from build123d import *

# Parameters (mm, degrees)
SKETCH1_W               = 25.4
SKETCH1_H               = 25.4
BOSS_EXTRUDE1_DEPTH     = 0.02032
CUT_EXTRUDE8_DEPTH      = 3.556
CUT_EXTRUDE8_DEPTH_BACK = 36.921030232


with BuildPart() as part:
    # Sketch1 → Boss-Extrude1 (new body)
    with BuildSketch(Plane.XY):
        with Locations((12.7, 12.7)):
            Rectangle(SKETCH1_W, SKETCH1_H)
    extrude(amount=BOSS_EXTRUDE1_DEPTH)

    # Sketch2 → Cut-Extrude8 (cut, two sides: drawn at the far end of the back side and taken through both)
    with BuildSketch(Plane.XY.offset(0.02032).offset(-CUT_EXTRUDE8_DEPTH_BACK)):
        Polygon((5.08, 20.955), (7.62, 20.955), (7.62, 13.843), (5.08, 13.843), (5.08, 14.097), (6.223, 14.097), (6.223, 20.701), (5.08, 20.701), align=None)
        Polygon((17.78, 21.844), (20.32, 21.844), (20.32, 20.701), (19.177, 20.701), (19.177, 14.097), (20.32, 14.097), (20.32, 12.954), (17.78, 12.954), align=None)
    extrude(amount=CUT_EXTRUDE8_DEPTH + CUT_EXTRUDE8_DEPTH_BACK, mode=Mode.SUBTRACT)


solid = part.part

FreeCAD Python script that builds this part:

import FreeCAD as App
import Part
import Sketcher

V = App.Vector
Q = App.Units.Quantity

doc = App.newDocument("Part")
body = doc.addObject("PartDesign::Body", "Body")

# Sketch on XY plane
sketch1 = doc.addObject("Sketcher::SketchObject", "Sketch")
body.addObject(sketch1)
sketch1.AttachmentSupport = (doc.XY_Plane, [""])
sketch1.MapMode = "FlatFace"
sketch1.addGeometry(Part.LineSegment(V(0, 25, 0), V(0, 0, 0)), False)
sketch1.addGeometry(Part.LineSegment(V(0, 0, 0), V(25, 0, 0)), False)
sketch1.addGeometry(Part.LineSegment(V(25, 0, 0), V(25, 25, 0)), False)
sketch1.addGeometry(Part.LineSegment(V(25, 25, 0), V(0, 25, 0)), False)
sketch1.addConstraint(Sketcher.Constraint("Coincident", 0, 2, 1, 1))
sketch1.addConstraint(Sketcher.Constraint("Coincident", 1, 2, 2, 1))
sketch1.addConstraint(Sketcher.Constraint("Coincident", 2, 2, 3, 1))
sketch1.addConstraint(Sketcher.Constraint("Coincident", 3, 2, 0, 1))
sketch1.addConstraint(Sketcher.Constraint("Vertical", 0))
sketch1.addConstraint(Sketcher.Constraint("Horizontal", 1))
sketch1.addConstraint(Sketcher.Constraint("Vertical", 2))
sketch1.addConstraint(Sketcher.Constraint("Horizontal", 3))
sketch1.addConstraint(Sketcher.Constraint("Coincident", 0, 2, -1, 1))
sketch1.addConstraint(Sketcher.Constraint("Equal", 3, 0))
sketch1.addConstraint(Sketcher.Constraint("DistanceX", 1, 1, 1, 2, Q("1 in")))
pad1 = doc.addObject("PartDesign::Pad", "Pad")
body.addObject(pad1)
pad1.Profile = sketch1
pad1.Length = Q("0.0008 in")

# Sketch on XY plane
sketch2 = doc.addObject("Sketcher::SketchObject", "Sketch001")
body.addObject(sketch2)
sketch2.AttachmentSupport = (doc.XY_Plane, [""])
sketch2.MapMode = "FlatFace"
sketch2.AttachmentOffset = App.Placement(V(0, 0, 0.0008 * 25.4), App.Rotation())
sketch2.addGeometry(Part.LineSegment(V(7.62, 20.95, 0), V(5.08, 20.95, 0)), False)
sketch2.addGeometry(Part.LineSegment(V(5.08, 20.95, 0), V(5.08, 20.7, 0)), False)
sketch2.addGeometry(Part.LineSegment(V(5.08, 20.7, 0), V(6.22, 20.7, 0)), False)
sketch2.addGeometry(Part.LineSegment(V(6.22, 20.7, 0), V(6.22, 14.1, 0)), False)
sketch2.addGeometry(Part.LineSegment(V(6.22, 14.1, 0), V(5.08, 14.1, 0)), False)
sketch2.addGeometry(Part.LineSegment(V(5.08, 14.1, 0), V(5.08, 13.84, 0)), False)
sketch2.addGeometry(Part.LineSegment(V(5.08, 13.84, 0), V(7.62, 13.84, 0)), False)
sketch2.addGeometry(Part.LineSegment(V(7.62, 13.84, 0), V(7.62, 20.95, 0)), False)
sketch2.addGeometry(Part.LineSegment(V(20.32, 21.84, 0), V(17.78, 21.84, 0)), False)
sketch2.addGeometry(Part.LineSegment(V(17.78, 21.84, 0), V(17.78, 12.95, 0)), False)
sketch2.addGeometry(Part.LineSegment(V(17.78, 12.95, 0), V(20.32, 12.95, 0)), False)
sketch2.addGeometry(Part.LineSegment(V(20.32, 12.95, 0), V(20.32, 14.1, 0)), False)
sketch2.addGeometry(Part.LineSegment(V(20.32, 14.1, 0), V(19.18, 14.1, 0)), False)
sketch2.addGeometry(Part.LineSegment(V(19.18, 14.1, 0), V(19.18, 20.7, 0)), False)
sketch2.addGeometry(Part.LineSegment(V(19.18, 20.7, 0), V(20.32, 20.7, 0)), False)
sketch2.addGeometry(Part.LineSegment(V(20.32, 20.7, 0), V(20.32, 21.84, 0)), False)
sketch2.addConstraint(Sketcher.Constraint("Coincident", 0, 2, 1, 1))
sketch2.addConstraint(Sketcher.Constraint("Coincident", 1, 2, 2, 1))
sketch2.addConstraint(Sketcher.Constraint("Coincident", 2, 2, 3, 1))
sketch2.addConstraint(Sketcher.Constraint("Coincident", 3, 2, 4, 1))
sketch2.addConstraint(Sketcher.Constraint("Coincident", 4, 2, 5, 1))
sketch2.addConstraint(Sketcher.Constraint("Coincident", 5, 2, 6, 1))
sketch2.addConstraint(Sketcher.Constraint("Coincident", 6, 2, 7, 1))
sketch2.addConstraint(Sketcher.Constraint("Coincident", 7, 2, 0, 1))
sketch2.addConstraint(Sketcher.Constraint("Coincident", 8, 2, 9, 1))
sketch2.addConstraint(Sketcher.Constraint("Coincident", 9, 2, 10, 1))
sketch2.addConstraint(Sketcher.Constraint("Coincident", 10, 2, 11, 1))
sketch2.addConstraint(Sketcher.Constraint("Coincident", 11, 2, 12, 1))
sketch2.addConstraint(Sketcher.Constraint("Coincident", 12, 2, 13, 1))
sketch2.addConstraint(Sketcher.Constraint("Coincident", 13, 2, 14, 1))
sketch2.addConstraint(Sketcher.Constraint("Coincident", 14, 2, 15, 1))
sketch2.addConstraint(Sketcher.Constraint("Coincident", 15, 2, 8, 1))
sketch2.addConstraint(Sketcher.Constraint("Horizontal", 0))
sketch2.addConstraint(Sketcher.Constraint("Vertical", 1))
sketch2.addConstraint(Sketcher.Constraint("Horizontal", 2))
sketch2.addConstraint(Sketcher.Constraint("Vertical", 3))
sketch2.addConstraint(Sketcher.Constraint("Horizontal", 4))
sketch2.addConstraint(Sketcher.Constraint("Vertical", 5))
sketch2.addConstraint(Sketcher.Constraint("Horizontal", 6))
sketch2.addConstraint(Sketcher.Constraint("Vertical", 7))
sketch2.addConstraint(Sketcher.Constraint("Horizontal", 8))
sketch2.addConstraint(Sketcher.Constraint("Vertical", 9))
sketch2.addConstraint(Sketcher.Constraint("Horizontal", 10))
sketch2.addConstraint(Sketcher.Constraint("Vertical", 11))
sketch2.addConstraint(Sketcher.Constraint("Horizontal", 12))
sketch2.addConstraint(Sketcher.Constraint("Vertical", 13))
sketch2.addConstraint(Sketcher.Constraint("Horizontal", 14))
sketch2.addConstraint(Sketcher.Constraint("Vertical", 15))
sketch2.addConstraint(Sketcher.Constraint("Horizontal", 4, 2, 11, 2))
sketch2.addConstraint(Sketcher.Constraint("Horizontal", 2, 2, 13, 2))
sketch2.addConstraint(Sketcher.Constraint("Vertical", 1, 2, 4, 2))
sketch2.addConstraint(Sketcher.Constraint("Vertical", 11, 2, 14, 2))
sketch2.addConstraint(Sketcher.Constraint("Equal", 6, 8))
sketch2.addConstraint(Sketcher.Constraint("Equal", 4, 12))
sketch2.addConstraint(Sketcher.Constraint("Equal", 1, 5))
sketch2.addConstraint(Sketcher.Constraint("Equal", 14, 11))
sketch2.addConstraint(Sketcher.Constraint("Equal", 11, 15))
sketch2.addConstraint(Sketcher.Constraint("DistanceX", 0, 2, 0, 1, Q("0.1 in")))
sketch2.addConstraint(Sketcher.Constraint("DistanceY", 1, 2, 1, 1, Q("0.01 in")))
sketch2.addConstraint(Sketcher.Constraint("DistanceY", 3, 2, 3, 1, Q("0.26 in")))
sketch2.addConstraint(Sketcher.Constraint("DistanceY", 9, 2, 9, 1, Q("0.35 in")))
sketch2.addConstraint(Sketcher.Constraint("DistanceX", -1, 1, 0, 2, Q("0.2 in")))
sketch2.addConstraint(Sketcher.Constraint("DistanceX", -1, 1, 8, 2, Q("0.7 in")))
sketch2.addConstraint(Sketcher.Constraint("DistanceY", -1, 1, 8, 2, Q("0.86 in")))
pocket1 = doc.addObject("PartDesign::Pocket", "Pocket")
body.addObject(pocket1)
pocket1.Profile = sketch2
pocket1.Type = "ThroughAll"
pocket1.Midplane = True

doc.recompute()
